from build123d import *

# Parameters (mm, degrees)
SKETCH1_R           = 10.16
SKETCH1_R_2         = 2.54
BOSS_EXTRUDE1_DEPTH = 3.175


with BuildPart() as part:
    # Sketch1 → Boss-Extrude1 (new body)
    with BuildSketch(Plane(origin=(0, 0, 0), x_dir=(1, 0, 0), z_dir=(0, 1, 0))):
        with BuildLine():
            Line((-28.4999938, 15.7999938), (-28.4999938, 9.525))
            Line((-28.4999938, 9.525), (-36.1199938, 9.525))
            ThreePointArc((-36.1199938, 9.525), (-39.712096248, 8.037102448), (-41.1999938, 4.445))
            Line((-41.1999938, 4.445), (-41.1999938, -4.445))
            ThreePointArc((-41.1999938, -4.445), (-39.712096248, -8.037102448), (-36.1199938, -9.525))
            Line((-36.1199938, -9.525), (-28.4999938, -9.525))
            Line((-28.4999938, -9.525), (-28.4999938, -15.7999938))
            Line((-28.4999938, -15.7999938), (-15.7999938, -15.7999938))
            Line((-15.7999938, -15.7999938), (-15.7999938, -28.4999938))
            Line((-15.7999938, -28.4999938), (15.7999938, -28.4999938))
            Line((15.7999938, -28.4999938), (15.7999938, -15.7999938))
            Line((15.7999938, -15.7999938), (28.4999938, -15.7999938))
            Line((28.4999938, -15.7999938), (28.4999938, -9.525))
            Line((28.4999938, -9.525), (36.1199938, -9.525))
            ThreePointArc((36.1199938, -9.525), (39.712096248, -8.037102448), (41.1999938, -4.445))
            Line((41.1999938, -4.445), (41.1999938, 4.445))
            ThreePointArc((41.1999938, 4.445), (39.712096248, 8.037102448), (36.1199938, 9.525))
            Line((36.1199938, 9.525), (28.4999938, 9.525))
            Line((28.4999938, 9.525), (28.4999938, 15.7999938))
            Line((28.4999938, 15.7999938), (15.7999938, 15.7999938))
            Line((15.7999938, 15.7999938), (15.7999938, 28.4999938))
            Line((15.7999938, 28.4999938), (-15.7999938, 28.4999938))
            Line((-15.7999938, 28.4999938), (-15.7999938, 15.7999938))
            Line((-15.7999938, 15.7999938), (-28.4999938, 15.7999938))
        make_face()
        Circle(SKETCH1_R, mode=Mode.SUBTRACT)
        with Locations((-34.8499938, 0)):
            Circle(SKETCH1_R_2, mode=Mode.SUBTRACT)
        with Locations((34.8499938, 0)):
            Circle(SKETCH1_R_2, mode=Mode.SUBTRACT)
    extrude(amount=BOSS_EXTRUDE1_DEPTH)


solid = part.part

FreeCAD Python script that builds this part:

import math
import FreeCAD as App
import Part
import Sketcher
Q = App.Units.Quantity

doc = App.newDocument("Part")
body = doc.addObject("PartDesign::Body", "Body")

# Sketch on XZ plane
sketch1 = body.newObject("Sketcher::SketchObject", "Sketch")
sketch1.AttachmentSupport = (doc.getObject("XZ_Plane"), [""])
sketch1.MapMode = "FlatFace"
sketch1.addGeometry(Part.LineSegment(App.Vector(-28.5, -15.8, 0), App.Vector(-28.5, -9.5, 0)), False)
sketch1.addGeometry(Part.LineSegment(App.Vector(-28.5, -9.5, 0), App.Vector(-36.1, -9.5, 0)), False)
sketch1.addGeometry(Part.ArcOfCircle(Part.Circle(App.Vector(-36.1, -4.4, 0), App.Vector(0, 0, 1), 5.1), math.radians(-180), math.radians(-90)), False)
sketch1.addGeometry(Part.LineSegment(App.Vector(-41.2, -4.4, 0), App.Vector(-41.2, 4.4, 0)), False)
sketch1.addGeometry(Part.ArcOfCircle(Part.Circle(App.Vector(-36.1, 4.4, 0), App.Vector(0, 0, 1), 5.1), math.radians(90), math.radians(180)), False)
sketch1.addGeometry(Part.LineSegment(App.Vector(-36.1, 9.5, 0), App.Vector(-28.5, 9.5, 0)), False)
sketch1.addGeometry(Part.LineSegment(App.Vector(-28.5, 9.5, 0), App.Vector(-28.5, 15.8, 0)), False)
sketch1.addGeometry(Part.LineSegment(App.Vector(-28.5, 15.8, 0), App.Vector(-15.8, 15.8, 0)), False)
sketch1.addGeometry(Part.LineSegment(App.Vector(-15.8, 15.8, 0), App.Vector(-15.8, 28.5, 0)), False)
sketch1.addGeometry(Part.LineSegment(App.Vector(-15.8, 28.5, 0), App.Vector(15.8, 28.5, 0)), False)
sketch1.addGeometry(Part.LineSegment(App.Vector(15.8, 28.5, 0), App.Vector(15.8, 15.8, 0)), False)
sketch1.addGeometry(Part.LineSegment(App.Vector(15.8, 15.8, 0), App.Vector(28.5, 15.8, 0)), False)
sketch1.addGeometry(Part.LineSegment(App.Vector(28.5, 15.8, 0), App.Vector(28.5, 9.5, 0)), False)
sketch1.addGeometry(Part.LineSegment(App.Vector(28.5, 9.5, 0), App.Vector(36.1, 9.5, 0)), False)
sketch1.addGeometry(Part.ArcOfCircle(Part.Circle(App.Vector(36.1, 4.4, 0), App.Vector(0, 0, 1), 5.1), math.radians(0), math.radians(90)), False)
sketch1.addGeometry(Part.LineSegment(App.Vector(41.2, 4.4, 0), App.Vector(41.2, -4.4, 0)), False)
sketch1.addGeometry(Part.ArcOfCircle(Part.Circle(App.Vector(36.1, -4.4, 0), App.Vector(0, 0, 1), 5.1), math.radians(-90), math.radians(0)), False)
sketch1.addGeometry(Part.LineSegment(App.Vector(36.1, -9.5, 0), App.Vector(28.5, -9.5, 0)), False)
sketch1.addGeometry(Part.LineSegment(App.Vector(28.5, -9.5, 0), App.Vector(28.5, -15.8, 0)), False)
sketch1.addGeometry(Part.LineSegment(App.Vector(28.5, -15.8, 0), App.Vector(15.8, -15.8, 0)), False)
sketch1.addGeometry(Part.LineSegment(App.Vector(15.8, -15.8, 0), App.Vector(15.8, -28.5, 0)), False)
sketch1.addGeometry(Part.LineSegment(App.Vector(15.8, -28.5, 0), App.Vector(-15.8, -28.5, 0)), False)
sketch1.addGeometry(Part.LineSegment(App.Vector(-15.8, -28.5, 0), App.Vector(-15.8, -15.8, 0)), False)
sketch1.addGeometry(Part.LineSegment(App.Vector(-15.8, -15.8, 0), App.Vector(-28.5, -15.8, 0)), False)
sketch1.addGeometry(Part.Circle(App.Vector(-34.8, 0, 0), App.Vector(0, 0, 1), 2.5), False)
sketch1.addGeometry(Part.Circle(App.Vector(0, 0, 0), App.Vector(0, 0, 1), 10.2), False)
sketch1.addGeometry(Part.Circle(App.Vector(34.8, 0, 0), App.Vector(0, 0, 1), 2.5), False)
sketch1.addConstraint(Sketcher.Constraint("Coincident", 0, 2, 1, 1))
sketch1.addConstraint(Sketcher.Constraint("Tangent", 1, 2, 2, 2))
sketch1.addConstraint(Sketcher.Constraint("Tangent", 2, 1, 3, 1))
sketch1.addConstraint(Sketcher.Constraint("Tangent", 3, 2, 4, 2))
sketch1.addConstraint(Sketcher.Constraint("Tangent", 4, 1, 5, 1))
sketch1.addConstraint(Sketcher.Constraint("Coincident", 5, 2, 6, 1))
sketch1.addConstraint(Sketcher.Constraint("Coincident", 6, 2, 7, 1))
sketch1.addConstraint(Sketcher.Constraint("Coincident", 7, 2, 8, 1))
sketch1.addConstraint(Sketcher.Constraint("Coincident", 8, 2, 9, 1))
sketch1.addConstraint(Sketcher.Constraint("Coincident", 9, 2, 10, 1))
sketch1.addConstraint(Sketcher.Constraint("Coincident", 10, 2, 11, 1))
sketch1.addConstraint(Sketcher.Constraint("Coincident", 11, 2, 12, 1))
sketch1.addConstraint(Sketcher.Constraint("Coincident", 12, 2, 13, 1))
sketch1.addConstraint(Sketcher.Constraint("Tangent", 13, 2, 14, 2))
sketch1.addConstraint(Sketcher.Constraint("Tangent", 14, 1, 15, 1))
sketch1.addConstraint(Sketcher.Constraint("Tangent", 15, 2, 16, 2))
sketch1.addConstraint(Sketcher.Constraint("Tangent", 16, 1, 17, 1))
sketch1.addConstraint(Sketcher.Constraint("Coincident", 17, 2, 18, 1))
sketch1.addConstraint(Sketcher.Constraint("Coincident", 18, 2, 19, 1))
sketch1.addConstraint(Sketcher.Constraint("Coincident", 19, 2, 20, 1))
sketch1.addConstraint(Sketcher.Constraint("Coincident", 20, 2, 21, 1))
sketch1.addConstraint(Sketcher.Constraint("Coincident", 21, 2, 22, 1))
sketch1.addConstraint(Sketcher.Constraint("Coincident", 22, 2, 23, 1))
sketch1.addConstraint(Sketcher.Constraint("Coincident", 23, 2, 0, 1))
sketch1.addConstraint(Sketcher.Constraint("Vertical", 0))
sketch1.addConstraint(Sketcher.Constraint("Horizontal", 1))
sketch1.addConstraint(Sketcher.Constraint("Vertical", 3))
sketch1.addConstraint(Sketcher.Constraint("Horizontal", 5))
sketch1.addConstraint(Sketcher.Constraint("Vertical", 6))
sketch1.addConstraint(Sketcher.Constraint("Horizontal", 7))
sketch1.addConstraint(Sketcher.Constraint("Vertical", 8))
sketch1.addConstraint(Sketcher.Constraint("Horizontal", 9))
sketch1.addConstraint(Sketcher.Constraint("Vertical", 10))
sketch1.addConstraint(Sketcher.Constraint("Horizontal", 11))
sketch1.addConstraint(Sketcher.Constraint("Vertical", 12))
sketch1.addConstraint(Sketcher.Constraint("Horizontal", 13))
sketch1.addConstraint(Sketcher.Constraint("Vertical", 15))
sketch1.addConstraint(Sketcher.Constraint("Horizontal", 17))
sketch1.addConstraint(Sketcher.Constraint("Vertical", 18))
sketch1.addConstraint(Sketcher.Constraint("Horizontal", 19))
sketch1.addConstraint(Sketcher.Constraint("Vertical", 20))
sketch1.addConstraint(Sketcher.Constraint("Horizontal", 21))
sketch1.addConstraint(Sketcher.Constraint("Vertical", 22))
sketch1.addConstraint(Sketcher.Constraint("Horizontal", 23))
sketch1.addConstraint(Sketcher.Constraint("Coincident", 25, 3, -1, 1))
sketch1.addConstraint(Sketcher.Constraint("Equal", 2, 4))
sketch1.addConstraint(Sketcher.Constraint("Equal", 4, 14))
sketch1.addConstraint(Sketcher.Constraint("Equal", 14, 16))
sketch1.addConstraint(Sketcher.Constraint("Equal", 24, 26))
sketch1.addConstraint(Sketcher.Constraint("Symmetric", 2, 3, 14, 3, -1, 1))
sketch1.addConstraint(Sketcher.Constraint("Symmetric", 24, 3, 26, 3, -1, 1))
sketch1.addConstraint(Sketcher.Constraint("Symmetric", 5, 2, 17, 2, -1, 1))
sketch1.addConstraint(Sketcher.Constraint("Symmetric", 7, 2, 19, 2, -1, 1))
sketch1.addConstraint(Sketcher.Constraint("Symmetric", 9, 2, 21, 2, -1, 1))
sketch1.addConstraint(Sketcher.Constraint("Symmetric", 11, 2, 23, 2, -1, 1))
sketch1.addConstraint(Sketcher.Constraint("Symmetric", 7, 2, 10, 2, -2))
sketch1.addConstraint(Sketcher.Constraint("Symmetric", 5, 2, 12, 2, -2))
sketch1.addConstraint(Sketcher.Constraint("PointOnObject", 24, 3, -1))
sketch1.addConstraint(Sketcher.Constraint("Equal", 23, 8))
sketch1.addConstraint(Sketcher.Constraint("Diameter", 24, Q("0.2 in")))
sketch1.addConstraint(Sketcher.Constraint("Diameter", 25, Q("0.8 in")))
sketch1.addConstraint(Sketcher.Constraint("Radius", 2, Q("0.2 in")))
sketch1.addConstraint(Sketcher.Constraint("DistanceX", 1, 2, 1, 1, Q("0.3 in")))
sketch1.addConstraint(Sketcher.Constraint("DistanceX", 7, 1, 7, 2, Q("0.5 in")))
sketch1.addConstraint(Sketcher.Constraint("DistanceY", 3, 1, 3, 2, Q("0.35 in")))
sketch1.addConstraint(Sketcher.Constraint("DistanceX", 2, 3, 24, 3, Q("0.05 in")))
sketch1.addConstraint(Sketcher.Constraint("DistanceX", 9, 1, 9, 2, 31.599988))
sketch1.addConstraint(Sketcher.Constraint("DistanceY", 0, 1, 0, 2, 6.274994))
pad1 = body.newObject("PartDesign::Pad", "Pad")
pad1.Profile = sketch1
pad1.Length = Q("0.125 in")
pad1.Reversed = True

doc.recompute()
